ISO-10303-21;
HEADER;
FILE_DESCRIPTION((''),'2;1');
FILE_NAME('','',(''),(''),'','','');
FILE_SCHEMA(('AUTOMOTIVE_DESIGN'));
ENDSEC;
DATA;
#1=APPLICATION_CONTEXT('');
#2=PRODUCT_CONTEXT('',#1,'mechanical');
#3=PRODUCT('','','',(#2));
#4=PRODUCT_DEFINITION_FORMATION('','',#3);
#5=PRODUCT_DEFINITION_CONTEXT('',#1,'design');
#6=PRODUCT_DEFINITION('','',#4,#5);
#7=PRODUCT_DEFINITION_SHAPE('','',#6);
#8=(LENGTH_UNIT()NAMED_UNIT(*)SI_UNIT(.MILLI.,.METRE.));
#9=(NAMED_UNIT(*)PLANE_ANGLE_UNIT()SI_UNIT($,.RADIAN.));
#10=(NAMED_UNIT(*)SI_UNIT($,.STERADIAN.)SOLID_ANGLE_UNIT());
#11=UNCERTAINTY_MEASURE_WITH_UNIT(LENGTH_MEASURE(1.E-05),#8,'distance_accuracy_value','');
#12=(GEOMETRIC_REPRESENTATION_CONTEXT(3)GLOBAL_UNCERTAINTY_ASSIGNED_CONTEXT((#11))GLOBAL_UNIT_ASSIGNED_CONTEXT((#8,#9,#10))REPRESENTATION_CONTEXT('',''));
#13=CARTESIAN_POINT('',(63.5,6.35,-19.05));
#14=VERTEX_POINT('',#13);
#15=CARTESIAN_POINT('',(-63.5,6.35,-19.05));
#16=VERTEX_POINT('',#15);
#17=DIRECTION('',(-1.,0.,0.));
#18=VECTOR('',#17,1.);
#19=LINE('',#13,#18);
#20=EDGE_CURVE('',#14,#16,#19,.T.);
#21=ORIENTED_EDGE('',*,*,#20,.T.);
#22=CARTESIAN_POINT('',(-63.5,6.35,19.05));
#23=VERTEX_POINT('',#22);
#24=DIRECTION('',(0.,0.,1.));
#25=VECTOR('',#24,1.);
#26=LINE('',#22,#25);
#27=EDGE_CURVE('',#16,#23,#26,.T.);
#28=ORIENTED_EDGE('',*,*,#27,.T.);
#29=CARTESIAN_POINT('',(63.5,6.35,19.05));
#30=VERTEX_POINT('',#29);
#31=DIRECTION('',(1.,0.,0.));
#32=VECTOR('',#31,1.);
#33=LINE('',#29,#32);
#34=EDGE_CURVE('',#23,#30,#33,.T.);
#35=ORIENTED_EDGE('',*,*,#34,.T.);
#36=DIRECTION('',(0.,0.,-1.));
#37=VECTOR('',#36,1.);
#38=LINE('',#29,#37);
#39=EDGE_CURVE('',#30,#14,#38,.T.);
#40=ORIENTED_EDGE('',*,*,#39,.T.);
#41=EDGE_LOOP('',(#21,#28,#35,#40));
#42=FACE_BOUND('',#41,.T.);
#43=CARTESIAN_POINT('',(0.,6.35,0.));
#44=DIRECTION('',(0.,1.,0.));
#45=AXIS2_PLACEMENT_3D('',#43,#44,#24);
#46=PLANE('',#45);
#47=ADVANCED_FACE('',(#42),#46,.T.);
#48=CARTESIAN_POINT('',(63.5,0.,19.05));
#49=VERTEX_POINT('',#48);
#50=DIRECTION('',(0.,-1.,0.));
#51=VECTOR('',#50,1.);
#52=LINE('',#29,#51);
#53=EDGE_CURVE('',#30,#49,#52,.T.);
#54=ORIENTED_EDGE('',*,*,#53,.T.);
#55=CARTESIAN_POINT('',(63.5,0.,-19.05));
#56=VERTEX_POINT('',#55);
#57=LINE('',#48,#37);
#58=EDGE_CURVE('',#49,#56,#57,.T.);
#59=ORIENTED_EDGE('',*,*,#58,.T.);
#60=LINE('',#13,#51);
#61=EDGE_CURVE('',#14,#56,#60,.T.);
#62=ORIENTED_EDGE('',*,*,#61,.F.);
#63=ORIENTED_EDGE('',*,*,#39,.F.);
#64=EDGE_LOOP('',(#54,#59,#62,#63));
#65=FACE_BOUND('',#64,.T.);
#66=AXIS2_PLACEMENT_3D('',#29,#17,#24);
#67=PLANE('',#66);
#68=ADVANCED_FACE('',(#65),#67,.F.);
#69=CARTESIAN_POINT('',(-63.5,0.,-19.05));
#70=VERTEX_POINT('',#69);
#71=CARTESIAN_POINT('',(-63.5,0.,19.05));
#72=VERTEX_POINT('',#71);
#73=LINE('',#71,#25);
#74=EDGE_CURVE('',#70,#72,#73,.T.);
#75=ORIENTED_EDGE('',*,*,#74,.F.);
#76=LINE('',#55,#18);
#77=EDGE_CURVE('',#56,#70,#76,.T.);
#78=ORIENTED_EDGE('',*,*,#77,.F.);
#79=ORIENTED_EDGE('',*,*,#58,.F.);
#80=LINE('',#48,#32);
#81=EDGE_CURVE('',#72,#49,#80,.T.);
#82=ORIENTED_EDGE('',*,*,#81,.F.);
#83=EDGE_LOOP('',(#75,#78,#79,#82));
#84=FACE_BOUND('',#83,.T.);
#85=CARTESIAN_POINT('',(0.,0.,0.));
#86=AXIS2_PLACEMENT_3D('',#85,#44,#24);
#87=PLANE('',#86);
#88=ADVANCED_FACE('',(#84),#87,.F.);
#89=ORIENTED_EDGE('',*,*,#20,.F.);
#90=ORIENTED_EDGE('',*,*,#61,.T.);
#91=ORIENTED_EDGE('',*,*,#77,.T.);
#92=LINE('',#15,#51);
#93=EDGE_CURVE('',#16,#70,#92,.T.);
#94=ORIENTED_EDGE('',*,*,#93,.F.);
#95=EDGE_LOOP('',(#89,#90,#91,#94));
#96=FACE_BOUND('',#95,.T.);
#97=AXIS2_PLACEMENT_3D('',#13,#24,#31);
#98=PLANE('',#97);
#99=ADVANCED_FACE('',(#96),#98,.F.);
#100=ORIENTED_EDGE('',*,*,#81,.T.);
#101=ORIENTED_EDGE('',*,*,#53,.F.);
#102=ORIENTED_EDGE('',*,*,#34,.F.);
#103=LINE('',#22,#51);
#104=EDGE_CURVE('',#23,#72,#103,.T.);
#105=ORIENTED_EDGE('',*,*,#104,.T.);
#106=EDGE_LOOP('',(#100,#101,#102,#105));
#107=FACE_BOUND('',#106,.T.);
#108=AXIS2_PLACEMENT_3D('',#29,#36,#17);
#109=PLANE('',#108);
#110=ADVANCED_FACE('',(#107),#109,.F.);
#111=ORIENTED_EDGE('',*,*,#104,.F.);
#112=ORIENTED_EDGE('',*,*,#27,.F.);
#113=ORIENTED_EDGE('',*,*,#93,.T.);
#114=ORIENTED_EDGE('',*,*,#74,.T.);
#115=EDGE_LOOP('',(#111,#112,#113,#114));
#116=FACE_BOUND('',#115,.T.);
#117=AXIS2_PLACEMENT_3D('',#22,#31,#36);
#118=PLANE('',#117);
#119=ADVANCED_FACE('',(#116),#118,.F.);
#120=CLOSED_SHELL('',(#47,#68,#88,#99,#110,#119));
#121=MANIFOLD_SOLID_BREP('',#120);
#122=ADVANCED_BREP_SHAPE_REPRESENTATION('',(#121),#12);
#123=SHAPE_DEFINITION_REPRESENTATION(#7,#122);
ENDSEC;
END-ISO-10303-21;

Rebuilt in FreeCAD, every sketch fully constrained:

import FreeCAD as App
import Part
import Sketcher
Q = App.Units.Quantity

doc = App.newDocument("Part")
params = doc.addObject("Spreadsheet::Sheet", "Params")
for row, (alias, value) in enumerate([
    ("sketch1_width", "5 in"),
    ("sketch1_height", "1.5 in"),
    ("pad1_length", "0.25 in"),
], start=1):
    params.set(f"A{row}", alias)
    params.set(f"B{row}", "=" + value)
    params.setAlias(f"B{row}", alias)

body = doc.addObject("PartDesign::Body", "Body")

# Sketch on XZ plane
sketch1 = doc.addObject("Sketcher::SketchObject", "Sketch")
body.addObject(sketch1)
sketch1.AttachmentSupport = (doc.XZ_Plane, [""])
sketch1.MapMode = "FlatFace"
sketch1.addGeometry([
    Part.LineSegment(App.Vector(-64, -19, 0), App.Vector(-64, 19, 0)),
    Part.LineSegment(App.Vector(-64, 19, 0), App.Vector(64, 19, 0)),
    Part.LineSegment(App.Vector(64, 19, 0), App.Vector(64, -19, 0)),
    Part.LineSegment(App.Vector(64, -19, 0), App.Vector(-64, -19, 0)),
], False)
sketch1.addConstraint([
    Sketcher.Constraint("Coincident", 0, 2, 1, 1),
    Sketcher.Constraint("Coincident", 1, 2, 2, 1),
    Sketcher.Constraint("Coincident", 2, 2, 3, 1),
    Sketcher.Constraint("Coincident", 3, 2, 0, 1),
    Sketcher.Constraint("Vertical", 0),
    Sketcher.Constraint("Horizontal", 1),
    Sketcher.Constraint("Vertical", 2),
    Sketcher.Constraint("Horizontal", 3),
    Sketcher.Constraint("Symmetric", 0, 2, 2, 2, -1, 1),
    Sketcher.Constraint("DistanceX", 1, 1, 1, 2, Q("5 in")),
    Sketcher.Constraint("DistanceY", 0, 1, 0, 2, Q("1.5 in")),
])
sketch1.setExpression("Constraints[9]", "Params.sketch1_width")
sketch1.setExpression("Constraints[10]", "Params.sketch1_height")
pad1 = doc.addObject("PartDesign::Pad", "Pad")
body.addObject(pad1)
pad1.Profile = sketch1
pad1.setExpression("Length", "Params.pad1_length")
pad1.Reversed = True

doc.recompute()
